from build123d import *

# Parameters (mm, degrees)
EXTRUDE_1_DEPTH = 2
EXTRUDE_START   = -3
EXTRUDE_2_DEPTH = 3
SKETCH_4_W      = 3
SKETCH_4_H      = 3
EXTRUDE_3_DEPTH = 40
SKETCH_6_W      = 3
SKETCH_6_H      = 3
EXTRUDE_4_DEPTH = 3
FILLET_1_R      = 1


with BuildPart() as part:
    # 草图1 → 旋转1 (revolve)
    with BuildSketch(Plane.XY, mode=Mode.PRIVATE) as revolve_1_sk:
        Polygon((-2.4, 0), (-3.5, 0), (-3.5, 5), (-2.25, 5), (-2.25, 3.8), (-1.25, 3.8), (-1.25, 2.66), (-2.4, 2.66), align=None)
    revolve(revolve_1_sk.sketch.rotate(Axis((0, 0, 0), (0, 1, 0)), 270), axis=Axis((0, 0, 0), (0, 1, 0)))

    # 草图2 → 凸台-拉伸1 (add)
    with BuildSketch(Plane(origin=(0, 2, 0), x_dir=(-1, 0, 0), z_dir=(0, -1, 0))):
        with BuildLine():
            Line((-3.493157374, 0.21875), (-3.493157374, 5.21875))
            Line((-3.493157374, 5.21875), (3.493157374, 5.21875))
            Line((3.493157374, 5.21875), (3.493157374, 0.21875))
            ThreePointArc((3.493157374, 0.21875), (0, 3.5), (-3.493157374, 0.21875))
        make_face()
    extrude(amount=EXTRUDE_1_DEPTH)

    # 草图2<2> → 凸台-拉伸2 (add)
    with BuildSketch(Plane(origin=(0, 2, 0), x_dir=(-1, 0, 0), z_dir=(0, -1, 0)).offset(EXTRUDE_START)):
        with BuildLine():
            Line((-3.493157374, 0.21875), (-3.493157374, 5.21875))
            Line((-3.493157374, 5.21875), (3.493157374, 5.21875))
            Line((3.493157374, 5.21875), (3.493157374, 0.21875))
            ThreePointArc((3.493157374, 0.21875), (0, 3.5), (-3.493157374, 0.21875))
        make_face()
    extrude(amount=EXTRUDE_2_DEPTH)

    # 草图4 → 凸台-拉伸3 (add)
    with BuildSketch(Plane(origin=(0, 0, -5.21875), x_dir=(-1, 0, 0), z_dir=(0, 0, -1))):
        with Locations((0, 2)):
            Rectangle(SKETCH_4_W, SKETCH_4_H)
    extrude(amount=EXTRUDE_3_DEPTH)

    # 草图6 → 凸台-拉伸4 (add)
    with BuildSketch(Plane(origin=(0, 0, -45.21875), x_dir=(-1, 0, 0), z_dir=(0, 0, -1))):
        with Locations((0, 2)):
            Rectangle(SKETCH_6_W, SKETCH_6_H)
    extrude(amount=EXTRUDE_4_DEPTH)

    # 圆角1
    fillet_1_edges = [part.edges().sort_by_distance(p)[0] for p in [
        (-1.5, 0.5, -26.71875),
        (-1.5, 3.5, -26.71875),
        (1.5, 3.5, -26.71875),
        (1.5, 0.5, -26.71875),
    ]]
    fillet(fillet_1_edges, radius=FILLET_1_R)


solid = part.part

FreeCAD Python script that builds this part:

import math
import FreeCAD as App
import Part
import Sketcher
from FreeCAD import Vector


def edges_at(feature, points):
    """Names of the edges that pass closest to the given points."""
    edges = feature.Shape.Edges
    near = lambda p: min(range(len(edges)), key=lambda i: edges[i].distToShape(Part.Vertex(*p))[0])
    return sorted({f"Edge{near(p) + 1}" for p in points})

doc = App.newDocument("Part")
params = doc.addObject("Spreadsheet::Sheet", "Params")
for row, (alias, value) in enumerate([
    ("sketch1_width", "1 mm"),
    ("sketch1_height", "5 mm"),
    ("sketch1_width2", "1.1 mm"),
    ("sketch1_height2", "1.2 mm"),
    ("sketch1_width3", "1.15 mm"),
    ("revolution_angle", "360 deg"),
    ("sketch2_radius", "3.5 mm"),
    ("sketch2_height", "5 mm"),
    ("pad1_length", "2 mm"),
    ("sketch3_radius", "3.5 mm"),
    ("sketch3_height", "5 mm"),
    ("pad2_length", "3 mm"),
    ("sketch4_width", "3 mm"),
    ("pad3_length", "40 mm"),
    ("sketch5_width", "3 mm"),
    ("pad4_length", "3 mm"),
    ("fillet_radius", "1 mm"),
], start=1):
    params.set(f"A{row}", alias)
    params.set(f"B{row}", "=" + value)
    params.setAlias(f"B{row}", alias)

body = doc.addObject("PartDesign::Body", "Body")

sketch1 = body.newObject("Sketcher::SketchObject", "Sketch")
sketch1.AttachmentSupport = (doc.getObject("XY_Plane"), [""])
sketch1.MapMode = "FlatFace"
sketch1.addGeometry([
    Part.LineSegment(Vector(-3.5, 0, 0), Vector(-2.4, 0, 0)),
    Part.LineSegment(Vector(-2.4, 0, 0), Vector(-2.4, 2.7, 0)),
    Part.LineSegment(Vector(-2.4, 2.7, 0), Vector(-1.2, 2.7, 0)),
    Part.LineSegment(Vector(-1.2, 2.7, 0), Vector(-1.2, 3.8, 0)),
    Part.LineSegment(Vector(-1.2, 3.8, 0), Vector(-2.2, 3.8, 0)),
    Part.LineSegment(Vector(-2.2, 3.8, 0), Vector(-2.2, 5, 0)),
    Part.LineSegment(Vector(-2.2, 5, 0), Vector(-3.5, 5, 0)),
    Part.LineSegment(Vector(-3.5, 5, 0), Vector(-3.5, 0, 0)),
], False)
sketch1.addConstraint([
    Sketcher.Constraint("Coincident", 0, 2, 1, 1),
    Sketcher.Constraint("Coincident", 1, 2, 2, 1),
    Sketcher.Constraint("Coincident", 2, 2, 3, 1),
    Sketcher.Constraint("Coincident", 3, 2, 4, 1),
    Sketcher.Constraint("Coincident", 4, 2, 5, 1),
    Sketcher.Constraint("Coincident", 5, 2, 6, 1),
    Sketcher.Constraint("Coincident", 6, 2, 7, 1),
    Sketcher.Constraint("Coincident", 7, 2, 0, 1),
    Sketcher.Constraint("Horizontal", 0),
    Sketcher.Constraint("Vertical", 1),
    Sketcher.Constraint("Horizontal", 2),
    Sketcher.Constraint("Vertical", 3),
    Sketcher.Constraint("Horizontal", 4),
    Sketcher.Constraint("Vertical", 5),
    Sketcher.Constraint("Horizontal", 6),
    Sketcher.Constraint("Vertical", 7),
    Sketcher.Constraint("PointOnObject", 0, 2, -1),
    Sketcher.Constraint("DistanceX", 4, 2, 4, 1, 1.0),
    Sketcher.Constraint("DistanceY", 7, 2, 7, 1, 5.0),
    Sketcher.Constraint("DistanceX", 0, 1, 0, 2, 1.1),
    Sketcher.Constraint("DistanceY", 5, 1, 5, 2, 1.2),
    Sketcher.Constraint("DistanceX", 2, 1, 2, 2, 1.15),
    Sketcher.Constraint("DistanceY", 1, 1, 1, 2, 2.66),
    Sketcher.Constraint("DistanceX", 0, 2, -1, 1, 2.4),
])
sketch1.setExpression("Constraints[17]", "Params.sketch1_width")
sketch1.setExpression("Constraints[18]", "Params.sketch1_height")
sketch1.setExpression("Constraints[19]", "Params.sketch1_width2")
sketch1.setExpression("Constraints[20]", "Params.sketch1_height2")
sketch1.setExpression("Constraints[21]", "Params.sketch1_width3")
revolution = body.newObject("PartDesign::Revolution", "Revolution")
revolution.Profile = sketch1
revolution.ReferenceAxis = (sketch1, ["V_Axis"])
revolution.setExpression("Angle", "Params.revolution_angle")

sketch2 = body.newObject("Sketcher::SketchObject", "Sketch001")
sketch2.AttachmentSupport = (doc.getObject("XZ_Plane"), [""])
sketch2.MapMode = "FlatFace"
sketch2.AttachmentOffset = App.Placement(Vector(0, 0, -2), App.Rotation())
sketch2.addGeometry([
    Part.LineSegment(Vector(3.5, -5.2, 0), Vector(3.5, -0.2, 0)),
    Part.ArcOfCircle(Part.Circle(Vector(0, 0, 0), Vector(0, 0, 1), 3.5), math.radians(-176), math.radians(-4)),
    Part.LineSegment(Vector(-3.5, -0.2, 0), Vector(-3.5, -5.2, 0)),
    Part.LineSegment(Vector(-3.5, -5.2, 0), Vector(3.5, -5.2, 0)),
], False)
sketch2.addConstraint([
    Sketcher.Constraint("Coincident", 0, 2, 1, 2),
    Sketcher.Constraint("Coincident", 1, 1, 2, 1),
    Sketcher.Constraint("Coincident", 2, 2, 3, 1),
    Sketcher.Constraint("Coincident", 3, 2, 0, 1),
    Sketcher.Constraint("Vertical", 0),
    Sketcher.Constraint("Vertical", 2),
    Sketcher.Constraint("Horizontal", 3),
    Sketcher.Constraint("Coincident", 1, 3, -1, 1),
    Sketcher.Constraint("Horizontal", 0, 2, 1, 1),
    Sketcher.Constraint("Radius", 1, 3.5),
    Sketcher.Constraint("DistanceY", 0, 1, 0, 2, 5.0),
    Sketcher.Constraint("DistanceX", 3, 1, 3, 2, 6.986315),
])
sketch2.setExpression("Constraints[9]", "Params.sketch2_radius")
sketch2.setExpression("Constraints[10]", "Params.sketch2_height")
pad1 = body.newObject("PartDesign::Pad", "Pad")
pad1.Profile = sketch2
pad1.setExpression("Length", "Params.pad1_length")

sketch3 = body.newObject("Sketcher::SketchObject", "Sketch002")
sketch3.AttachmentSupport = (doc.getObject("XZ_Plane"), [""])
sketch3.MapMode = "FlatFace"
sketch3.AttachmentOffset = App.Placement(Vector(0, 0, -5), App.Rotation())
sketch3.addGeometry([
    Part.LineSegment(Vector(3.5, -5.2, 0), Vector(3.5, -0.2, 0)),
    Part.ArcOfCircle(Part.Circle(Vector(0, 0, 0), Vector(0, 0, 1), 3.5), math.radians(-176), math.radians(-4)),
    Part.LineSegment(Vector(-3.5, -0.2, 0), Vector(-3.5, -5.2, 0)),
    Part.LineSegment(Vector(-3.5, -5.2, 0), Vector(3.5, -5.2, 0)),
], False)
sketch3.addConstraint([
    Sketcher.Constraint("Coincident", 0, 2, 1, 2),
    Sketcher.Constraint("Coincident", 1, 1, 2, 1),
    Sketcher.Constraint("Coincident", 2, 2, 3, 1),
    Sketcher.Constraint("Coincident", 3, 2, 0, 1),
    Sketcher.Constraint("Vertical", 0),
    Sketcher.Constraint("Vertical", 2),
    Sketcher.Constraint("Horizontal", 3),
    Sketcher.Constraint("Coincident", 1, 3, -1, 1),
    Sketcher.Constraint("Horizontal", 0, 2, 1, 1),
    Sketcher.Constraint("Radius", 1, 3.5),
    Sketcher.Constraint("DistanceY", 0, 1, 0, 2, 5.0),
    Sketcher.Constraint("DistanceX", 3, 1, 3, 2, 6.986315),
])
sketch3.setExpression("Constraints[9]", "Params.sketch3_radius")
sketch3.setExpression("Constraints[10]", "Params.sketch3_height")
pad2 = body.newObject("PartDesign::Pad", "Pad001")
pad2.Profile = sketch3
pad2.setExpression("Length", "Params.pad2_length")

sketch4 = body.newObject("Sketcher::SketchObject", "Sketch003")
sketch4.AttachmentSupport = (doc.getObject("XY_Plane"), [""])
sketch4.MapMode = "FlatFace"
sketch4.AttachmentOffset = App.Placement(Vector(0, 0, -5.21875), App.Rotation())
sketch4.addGeometry([
    Part.LineSegment(Vector(1.5, 3.5, 0), Vector(1.5, 0.5, 0)),
    Part.LineSegment(Vector(1.5, 0.5, 0), Vector(-1.5, 0.5, 0)),
    Part.LineSegment(Vector(-1.5, 0.5, 0), Vector(-1.5, 3.5, 0)),
    Part.LineSegment(Vector(-1.5, 3.5, 0), Vector(1.5, 3.5, 0)),
], False)
sketch4.addConstraint([
    Sketcher.Constraint("Coincident", 0, 2, 1, 1),
    Sketcher.Constraint("Coincident", 1, 2, 2, 1),
    Sketcher.Constraint("Coincident", 2, 2, 3, 1),
    Sketcher.Constraint("Coincident", 3, 2, 0, 1),
    Sketcher.Constraint("Vertical", 0),
    Sketcher.Constraint("Horizontal", 1),
    Sketcher.Constraint("Vertical", 2),
    Sketcher.Constraint("Horizontal", 3),
    Sketcher.Constraint("Equal", 3, 0),
    Sketcher.Constraint("DistanceX", 1, 2, 1, 1, 3.0),
    Sketcher.Constraint("DistanceX", -1, 1, 0, 2, 1.5),
    Sketcher.Constraint("DistanceY", -1, 1, 0, 2, 0.5),
])
sketch4.setExpression("Constraints[9]", "Params.sketch4_width")
pad3 = body.newObject("PartDesign::Pad", "Pad002")
pad3.Profile = sketch4
pad3.setExpression("Length", "Params.pad3_length")
pad3.Reversed = True

sketch5 = body.newObject("Sketcher::SketchObject", "Sketch004")
sketch5.AttachmentSupport = (doc.getObject("XY_Plane"), [""])
sketch5.MapMode = "FlatFace"
sketch5.AttachmentOffset = App.Placement(Vector(0, 0, -45.21875), App.Rotation())
sketch5.addGeometry([
    Part.LineSegment(Vector(1.5, 3.5, 0), Vector(1.5, 0.5, 0)),
    Part.LineSegment(Vector(1.5, 0.5, 0), Vector(-1.5, 0.5, 0)),
    Part.LineSegment(Vector(-1.5, 0.5, 0), Vector(-1.5, 3.5, 0)),
    Part.LineSegment(Vector(-1.5, 3.5, 0), Vector(1.5, 3.5, 0)),
], False)
sketch5.addConstraint([
    Sketcher.Constraint("Coincident", 0, 2, 1, 1),
    Sketcher.Constraint("Coincident", 1, 2, 2, 1),
    Sketcher.Constraint("Coincident", 2, 2, 3, 1),
    Sketcher.Constraint("Coincident", 3, 2, 0, 1),
    Sketcher.Constraint("Vertical", 0),
    Sketcher.Constraint("Horizontal", 1),
    Sketcher.Constraint("Vertical", 2),
    Sketcher.Constraint("Horizontal", 3),
    Sketcher.Constraint("Equal", 3, 0),
    Sketcher.Constraint("DistanceX", 1, 2, 1, 1, 3.0),
    Sketcher.Constraint("DistanceX", -1, 1, 0, 2, 1.5),
    Sketcher.Constraint("DistanceY", -1, 1, 0, 2, 0.5),
])
sketch5.setExpression("Constraints[9]", "Params.sketch5_width")
pad4 = body.newObject("PartDesign::Pad", "Pad003")
pad4.Profile = sketch5
pad4.setExpression("Length", "Params.pad4_length")
pad4.Reversed = True
doc.recompute()

fillet = body.newObject("PartDesign::Fillet", "Fillet")
fillet.Base = (pad4, edges_at(pad4, [
    (-1.5, 0.5, -26.719),
    (-1.5, 3.5, -26.719),
    (1.5, 3.5, -26.719),
    (1.5, 0.5, -26.719),
]))
fillet.setExpression("Radius", "Params.fillet_radius")

doc.recompute()
